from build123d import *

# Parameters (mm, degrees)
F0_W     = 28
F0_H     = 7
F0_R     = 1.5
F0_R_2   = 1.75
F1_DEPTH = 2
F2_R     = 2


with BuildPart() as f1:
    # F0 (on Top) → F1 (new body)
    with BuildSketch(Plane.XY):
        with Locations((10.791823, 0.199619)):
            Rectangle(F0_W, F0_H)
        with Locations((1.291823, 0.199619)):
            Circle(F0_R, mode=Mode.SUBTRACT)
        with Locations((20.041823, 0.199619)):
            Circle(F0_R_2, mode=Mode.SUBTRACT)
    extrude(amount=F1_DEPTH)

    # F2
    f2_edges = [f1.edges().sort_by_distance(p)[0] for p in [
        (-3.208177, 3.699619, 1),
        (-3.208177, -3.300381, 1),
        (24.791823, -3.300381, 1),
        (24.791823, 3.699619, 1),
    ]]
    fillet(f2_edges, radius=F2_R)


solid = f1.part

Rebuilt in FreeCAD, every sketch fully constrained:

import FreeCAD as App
import Part
import Sketcher

V = App.Vector


def edges_at(feature, points):
    """Names of the edges that pass closest to the given points."""
    edges = feature.Shape.Edges
    near = lambda p: min(range(len(edges)), key=lambda i: edges[i].distToShape(Part.Vertex(*p))[0])
    return sorted({f"Edge{near(p) + 1}" for p in points})


def add_polygon(sketch, points):
    """Adds a closed chain of lines whose ends are joined by coincident constraints."""
    first, n = sketch.GeometryCount, len(points)
    for a, b in zip(points, points[1:] + points[:1]):
        sketch.addGeometry(Part.LineSegment(App.Vector(*a, 0), App.Vector(*b, 0)), False)
    for i in range(n):
        sketch.addConstraint(Sketcher.Constraint("Coincident", first + i, 2, first + (i + 1) % n, 1))

doc = App.newDocument("Part")
body = doc.addObject("PartDesign::Body", "Body")

sketch1 = body.newObject("Sketcher::SketchObject", "Sketch")
sketch1.AttachmentSupport = (doc.getObject("XY_Plane"), [""])
sketch1.MapMode = "FlatFace"
add_polygon(sketch1, [(-3.2, 3.7), (-3.2, -3.3), (24.8, -3.3), (24.8, 3.7)])
sketch1.addGeometry(Part.Circle(V(1.3, 0.2, 0), V(0, 0, 1), 1.5), False)
sketch1.addGeometry(Part.Circle(V(20, 0.2, 0), V(0, 0, 1), 1.8), False)
sketch1.addConstraint([
    Sketcher.Constraint("Vertical", 0),
    Sketcher.Constraint("Horizontal", 1),
    Sketcher.Constraint("Vertical", 2),
    Sketcher.Constraint("Horizontal", 3),
    Sketcher.Constraint("Horizontal", 4, 3, 5, 3),
    Sketcher.Constraint("Diameter", 4, 3.0),
    Sketcher.Constraint("Diameter", 5, 3.5),
    Sketcher.Constraint("DistanceX", 1, 1, 1, 2, 28.0),
    Sketcher.Constraint("DistanceY", 0, 2, 0, 1, 7.0),
    Sketcher.Constraint("DistanceX", 0, 2, 4, 3, 4.5),
    Sketcher.Constraint("DistanceY", 0, 2, 4, 3, 3.5),
    Sketcher.Constraint("DistanceX", 4, 3, 5, 3, 18.75),
    Sketcher.Constraint("DistanceY", -1, 1, 4, 3, 0.199619),
    Sketcher.Constraint("DistanceX", -1, 1, 4, 3, 1.291823),
])
pad1 = body.newObject("PartDesign::Pad", "Pad")
pad1.Profile = sketch1
pad1.Length = 2
doc.recompute()

fillet = body.newObject("PartDesign::Fillet", "Fillet")
fillet.Base = (pad1, edges_at(pad1, [
    (-3.208, 3.7, 1),
    (-3.208, -3.3, 1),
    (24.792, -3.3, 1),
    (24.792, 3.7, 1),
]))
fillet.Radius = 2

doc.recompute()
